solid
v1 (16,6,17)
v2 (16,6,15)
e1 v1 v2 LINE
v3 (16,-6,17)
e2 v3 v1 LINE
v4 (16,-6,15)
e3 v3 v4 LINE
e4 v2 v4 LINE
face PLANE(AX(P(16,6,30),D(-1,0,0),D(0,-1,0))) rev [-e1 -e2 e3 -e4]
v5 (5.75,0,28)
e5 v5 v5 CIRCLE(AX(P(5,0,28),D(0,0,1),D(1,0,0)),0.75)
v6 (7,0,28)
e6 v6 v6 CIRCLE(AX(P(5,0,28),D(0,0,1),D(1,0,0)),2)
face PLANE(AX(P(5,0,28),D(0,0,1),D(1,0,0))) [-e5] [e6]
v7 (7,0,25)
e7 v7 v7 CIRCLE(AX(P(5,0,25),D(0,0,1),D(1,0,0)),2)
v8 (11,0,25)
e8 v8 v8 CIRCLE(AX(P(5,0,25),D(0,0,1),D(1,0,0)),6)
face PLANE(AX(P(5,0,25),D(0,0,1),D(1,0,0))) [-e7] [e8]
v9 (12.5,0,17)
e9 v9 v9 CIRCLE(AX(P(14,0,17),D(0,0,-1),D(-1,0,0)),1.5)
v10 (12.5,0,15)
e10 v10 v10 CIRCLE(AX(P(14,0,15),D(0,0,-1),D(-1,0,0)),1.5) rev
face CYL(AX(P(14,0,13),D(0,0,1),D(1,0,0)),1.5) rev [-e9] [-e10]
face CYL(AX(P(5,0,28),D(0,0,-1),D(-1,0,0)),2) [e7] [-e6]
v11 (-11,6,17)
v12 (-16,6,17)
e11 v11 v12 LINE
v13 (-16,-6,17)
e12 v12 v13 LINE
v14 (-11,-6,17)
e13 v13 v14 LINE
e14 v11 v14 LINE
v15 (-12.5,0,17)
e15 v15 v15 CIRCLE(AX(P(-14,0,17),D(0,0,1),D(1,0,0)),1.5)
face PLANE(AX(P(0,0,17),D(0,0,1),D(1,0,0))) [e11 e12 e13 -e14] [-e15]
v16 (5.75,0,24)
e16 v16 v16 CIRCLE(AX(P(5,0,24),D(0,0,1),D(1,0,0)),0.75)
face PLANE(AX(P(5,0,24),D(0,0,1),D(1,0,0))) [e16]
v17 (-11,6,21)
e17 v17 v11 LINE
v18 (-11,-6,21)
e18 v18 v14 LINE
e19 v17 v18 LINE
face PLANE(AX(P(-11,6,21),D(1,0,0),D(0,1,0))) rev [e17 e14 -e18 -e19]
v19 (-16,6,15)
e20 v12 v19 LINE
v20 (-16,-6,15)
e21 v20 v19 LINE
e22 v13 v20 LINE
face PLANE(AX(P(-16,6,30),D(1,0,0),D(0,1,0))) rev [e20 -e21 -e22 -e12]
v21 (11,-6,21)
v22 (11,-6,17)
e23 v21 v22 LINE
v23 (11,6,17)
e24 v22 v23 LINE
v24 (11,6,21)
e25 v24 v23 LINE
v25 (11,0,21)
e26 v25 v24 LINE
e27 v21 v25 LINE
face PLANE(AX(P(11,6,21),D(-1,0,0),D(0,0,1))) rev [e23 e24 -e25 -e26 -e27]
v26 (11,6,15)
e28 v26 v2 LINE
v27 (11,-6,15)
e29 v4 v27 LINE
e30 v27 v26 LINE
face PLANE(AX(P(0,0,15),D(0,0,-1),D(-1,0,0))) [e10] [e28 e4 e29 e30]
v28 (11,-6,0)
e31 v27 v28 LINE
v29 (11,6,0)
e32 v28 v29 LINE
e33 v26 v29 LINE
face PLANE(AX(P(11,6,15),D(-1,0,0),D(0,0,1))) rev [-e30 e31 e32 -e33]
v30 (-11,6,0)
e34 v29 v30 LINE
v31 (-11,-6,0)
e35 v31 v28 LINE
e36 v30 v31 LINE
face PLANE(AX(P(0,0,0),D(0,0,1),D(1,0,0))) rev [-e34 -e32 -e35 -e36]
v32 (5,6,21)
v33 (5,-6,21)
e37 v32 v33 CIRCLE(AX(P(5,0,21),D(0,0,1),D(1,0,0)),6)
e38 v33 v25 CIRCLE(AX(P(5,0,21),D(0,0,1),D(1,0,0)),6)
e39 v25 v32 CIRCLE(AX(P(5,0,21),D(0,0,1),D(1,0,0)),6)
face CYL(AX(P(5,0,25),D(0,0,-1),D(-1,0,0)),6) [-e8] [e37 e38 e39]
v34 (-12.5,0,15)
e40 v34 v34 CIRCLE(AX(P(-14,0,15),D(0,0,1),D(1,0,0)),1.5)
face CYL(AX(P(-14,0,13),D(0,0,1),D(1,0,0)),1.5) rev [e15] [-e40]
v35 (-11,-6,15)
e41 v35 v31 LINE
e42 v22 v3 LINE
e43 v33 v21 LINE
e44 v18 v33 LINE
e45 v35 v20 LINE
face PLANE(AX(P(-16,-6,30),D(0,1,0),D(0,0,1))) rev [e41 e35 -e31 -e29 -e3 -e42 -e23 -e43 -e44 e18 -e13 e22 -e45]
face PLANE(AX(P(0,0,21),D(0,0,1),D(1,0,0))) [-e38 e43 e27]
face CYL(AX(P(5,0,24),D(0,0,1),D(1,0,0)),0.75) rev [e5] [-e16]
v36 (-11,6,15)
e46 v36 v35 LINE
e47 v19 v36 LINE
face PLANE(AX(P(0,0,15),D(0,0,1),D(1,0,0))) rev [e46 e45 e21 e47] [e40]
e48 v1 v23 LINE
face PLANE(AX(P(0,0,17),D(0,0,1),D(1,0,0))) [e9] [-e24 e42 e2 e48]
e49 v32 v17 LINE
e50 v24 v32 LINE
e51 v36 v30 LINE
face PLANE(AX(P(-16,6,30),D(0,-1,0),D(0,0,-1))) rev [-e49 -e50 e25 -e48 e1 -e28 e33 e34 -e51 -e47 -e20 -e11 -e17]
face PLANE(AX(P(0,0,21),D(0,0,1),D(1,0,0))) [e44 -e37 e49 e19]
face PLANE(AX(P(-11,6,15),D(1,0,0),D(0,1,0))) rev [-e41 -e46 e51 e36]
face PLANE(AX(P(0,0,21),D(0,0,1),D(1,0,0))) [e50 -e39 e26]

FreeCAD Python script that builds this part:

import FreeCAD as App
import Part
import Sketcher
from FreeCAD import Vector


def add_polygon(sketch, points):
    """Adds a closed chain of lines whose ends are joined by coincident constraints."""
    first, n = sketch.GeometryCount, len(points)
    for a, b in zip(points, points[1:] + points[:1]):
        sketch.addGeometry(Part.LineSegment(App.Vector(*a, 0), App.Vector(*b, 0)), False)
    for i in range(n):
        sketch.addConstraint(Sketcher.Constraint("Coincident", first + i, 2, first + (i + 1) % n, 1))

doc = App.newDocument("Part")
params = doc.addObject("Spreadsheet::Sheet", "Params")
for row, (alias, value) in enumerate([
    ("sketch1_width", "32 mm"),
    ("sketch1_height", "12 mm"),
    ("pad1_length", "30 mm"),
    ("sketch2_width", "5 mm"),
    ("sketch2_height", "12 mm"),
    ("pocket1_length", "15 mm"),
    ("sketch3_width", "32 mm"),
    ("sketch3_height", "12 mm"),
    ("pocket2_length", "13 mm"),
    ("sketch4_width", "22 mm"),
    ("sketch4_height", "12 mm"),
    ("pad2_length", "4 mm"),
    ("sketch5_diameter", "12 mm"),
    ("pad3_length", "4 mm"),
    ("sketch6_diameter", "4 mm"),
    ("pad4_length", "3 mm"),
    ("sketch7_diameter", "1.5 mm"),
    ("pocket3_length", "4 mm"),
    ("sketch8_diameter", "3 mm"),
    ("pocket4_length", "4 mm"),
], start=1):
    params.set(f"A{row}", alias)
    params.set(f"B{row}", "=" + value)
    params.setAlias(f"B{row}", alias)

body = doc.addObject("PartDesign::Body", "Body")

# Sketch on XY plane
sketch1 = doc.addObject("Sketcher::SketchObject", "Sketch")
body.addObject(sketch1)
sketch1.AttachmentSupport = (doc.XY_Plane, [""])
sketch1.MapMode = "FlatFace"
add_polygon(sketch1, [(-16, 6), (-16, -6), (16, -6), (16, 6)])  # lines 0-3
sketch1.addConstraint([
    Sketcher.Constraint("Vertical", 0),
    Sketcher.Constraint("Horizontal", 1),
    Sketcher.Constraint("Vertical", 2),
    Sketcher.Constraint("Horizontal", 3),
    Sketcher.Constraint("Symmetric", 0, 2, 2, 2, -1, 1),
    Sketcher.Constraint("DistanceX", 1, 1, 1, 2, 32.0),
    Sketcher.Constraint("DistanceY", 0, 2, 0, 1, 12.0),
])
sketch1.setExpression("Constraints[9]", "Params.sketch1_width")
sketch1.setExpression("Constraints[10]", "Params.sketch1_height")
pad1 = doc.addObject("PartDesign::Pad", "Pad")
body.addObject(pad1)
pad1.Profile = sketch1
pad1.setExpression("Length", "Params.pad1_length")

# Sketch on XY plane
sketch2 = doc.addObject("Sketcher::SketchObject", "Sketch001")
body.addObject(sketch2)
sketch2.AttachmentSupport = (doc.XY_Plane, [""])
sketch2.MapMode = "FlatFace"
add_polygon(sketch2, [(16, 6), (16, -6), (11, -6), (11, 6)])  # lines 0-3
add_polygon(sketch2, [(-11, 6), (-11, -6), (-16, -6), (-16, 6)])  # lines 4-7
sketch2.addConstraint([
    Sketcher.Constraint("Vertical", 0),
    Sketcher.Constraint("Horizontal", 1),
    Sketcher.Constraint("Vertical", 2),
    Sketcher.Constraint("Horizontal", 3),
    Sketcher.Constraint("Vertical", 4),
    Sketcher.Constraint("Horizontal", 5),
    Sketcher.Constraint("Vertical", 6),
    Sketcher.Constraint("Horizontal", 7),
    Sketcher.Constraint("Symmetric", 2, 2, 4, 2, -1, 1),
    Sketcher.Constraint("Symmetric", 0, 2, 6, 2, -1, 1),
    Sketcher.Constraint("Horizontal", 1, 2, 4, 2),
    Sketcher.Constraint("DistanceX", 1, 2, 1, 1, 5.0),
    Sketcher.Constraint("DistanceY", 0, 2, 0, 1, 12.0),
    Sketcher.Constraint("DistanceX", -1, 1, 0, 2, 16.0),
])
sketch2.setExpression("Constraints[19]", "Params.sketch2_width")
sketch2.setExpression("Constraints[20]", "Params.sketch2_height")
pocket1 = doc.addObject("PartDesign::Pocket", "Pocket")
body.addObject(pocket1)
pocket1.Profile = sketch2
pocket1.setExpression("Length", "Params.pocket1_length")
pocket1.Reversed = True

# Sketch on XY plane
sketch3 = doc.addObject("Sketcher::SketchObject", "Sketch002")
body.addObject(sketch3)
sketch3.AttachmentSupport = (doc.XY_Plane, [""])
sketch3.MapMode = "FlatFace"
sketch3.AttachmentOffset = App.Placement(Vector(0, 0, 30), App.Rotation())
add_polygon(sketch3, [(-16, 6), (-16, -6), (16, -6), (16, 6)])  # lines 0-3
sketch3.addConstraint([
    Sketcher.Constraint("Vertical", 0),
    Sketcher.Constraint("Horizontal", 1),
    Sketcher.Constraint("Vertical", 2),
    Sketcher.Constraint("Horizontal", 3),
    Sketcher.Constraint("Symmetric", 0, 2, 2, 2, -1, 1),
    Sketcher.Constraint("DistanceX", 1, 1, 1, 2, 32.0),
    Sketcher.Constraint("DistanceY", 0, 2, 0, 1, 12.0),
])
sketch3.setExpression("Constraints[9]", "Params.sketch3_width")
sketch3.setExpression("Constraints[10]", "Params.sketch3_height")
pocket2 = doc.addObject("PartDesign::Pocket", "Pocket001")
body.addObject(pocket2)
pocket2.Profile = sketch3
pocket2.setExpression("Length", "Params.pocket2_length")

# Sketch on XY plane
sketch4 = doc.addObject("Sketcher::SketchObject", "Sketch003")
body.addObject(sketch4)
sketch4.AttachmentSupport = (doc.XY_Plane, [""])
sketch4.MapMode = "FlatFace"
sketch4.AttachmentOffset = App.Placement(Vector(0, 0, 17), App.Rotation())
add_polygon(sketch4, [(-11, 6), (-11, -6), (11, -6), (11, 6)])  # lines 0-3
sketch4.addConstraint([
    Sketcher.Constraint("Vertical", 0),
    Sketcher.Constraint("Horizontal", 1),
    Sketcher.Constraint("Vertical", 2),
    Sketcher.Constraint("Horizontal", 3),
    Sketcher.Constraint("Symmetric", 0, 2, 2, 2, -1, 1),
    Sketcher.Constraint("DistanceX", 1, 1, 1, 2, 22.0),
    Sketcher.Constraint("DistanceY", 0, 2, 0, 1, 12.0),
])
sketch4.setExpression("Constraints[9]", "Params.sketch4_width")
sketch4.setExpression("Constraints[10]", "Params.sketch4_height")
pad2 = doc.addObject("PartDesign::Pad", "Pad001")
body.addObject(pad2)
pad2.Profile = sketch4
pad2.setExpression("Length", "Params.pad2_length")

# Sketch on XY plane
sketch5 = doc.addObject("Sketcher::SketchObject", "Sketch004")
body.addObject(sketch5)
sketch5.AttachmentSupport = (doc.XY_Plane, [""])
sketch5.MapMode = "FlatFace"
sketch5.AttachmentOffset = App.Placement(Vector(0, 0, 21), App.Rotation())
sketch5.addGeometry(Part.Circle(Vector(5, 0, 0), Vector(0, 0, 1), 6), False)
sketch5.addConstraint([
    Sketcher.Constraint("PointOnObject", 0, 3, -1),
    Sketcher.Constraint("Diameter", 0, 12.0),
    Sketcher.Constraint("DistanceX", -1, 1, 0, 3, 5.0),
])
sketch5.setExpression("Constraints[1]", "Params.sketch5_diameter")
pad3 = doc.addObject("PartDesign::Pad", "Pad002")
body.addObject(pad3)
pad3.Profile = sketch5
pad3.setExpression("Length", "Params.pad3_length")

# Sketch on XY plane
sketch6 = doc.addObject("Sketcher::SketchObject", "Sketch005")
body.addObject(sketch6)
sketch6.AttachmentSupport = (doc.XY_Plane, [""])
sketch6.MapMode = "FlatFace"
sketch6.AttachmentOffset = App.Placement(Vector(0, 0, 25), App.Rotation())
sketch6.addGeometry(Part.Circle(Vector(5, 0, 0), Vector(0, 0, 1), 2), False)
sketch6.addConstraint([
    Sketcher.Constraint("PointOnObject", 0, 3, -1),
    Sketcher.Constraint("Diameter", 0, 4.0),
    Sketcher.Constraint("DistanceX", -1, 1, 0, 3, 5.0),
])
sketch6.setExpression("Constraints[1]", "Params.sketch6_diameter")
pad4 = doc.addObject("PartDesign::Pad", "Pad003")
body.addObject(pad4)
pad4.Profile = sketch6
pad4.setExpression("Length", "Params.pad4_length")

# Sketch on XY plane
sketch7 = doc.addObject("Sketcher::SketchObject", "Sketch006")
body.addObject(sketch7)
sketch7.AttachmentSupport = (doc.XY_Plane, [""])
sketch7.MapMode = "FlatFace"
sketch7.AttachmentOffset = App.Placement(Vector(0, 0, 28), App.Rotation())
sketch7.addGeometry(Part.Circle(Vector(5, 0, 0), Vector(0, 0, 1), 0.8), False)
sketch7.addConstraint([
    Sketcher.Constraint("PointOnObject", 0, 3, -1),
    Sketcher.Constraint("Diameter", 0, 1.5),
    Sketcher.Constraint("DistanceX", -1, 1, 0, 3, 5.0),
])
sketch7.setExpression("Constraints[1]", "Params.sketch7_diameter")
pocket3 = doc.addObject("PartDesign::Pocket", "Pocket002")
body.addObject(pocket3)
pocket3.Profile = sketch7
pocket3.setExpression("Length", "Params.pocket3_length")

# Sketch on XY plane
sketch8 = doc.addObject("Sketcher::SketchObject", "Sketch007")
body.addObject(sketch8)
sketch8.AttachmentSupport = (doc.XY_Plane, [""])
sketch8.MapMode = "FlatFace"
sketch8.AttachmentOffset = App.Placement(Vector(0, 0, 17), App.Rotation())
sketch8.addGeometry(Part.Circle(Vector(-14, 0, 0), Vector(0, 0, 1), 1.5), False)
sketch8.addConstraint([
    Sketcher.Constraint("PointOnObject", 0, 3, -1),
    Sketcher.Constraint("Diameter", 0, 3.0),
    Sketcher.Constraint("DistanceX", 0, 3, -1, 1, 14.0),
])
sketch8.setExpression("Constraints[1]", "Params.sketch8_diameter")
pocket4 = doc.addObject("PartDesign::Pocket", "Pocket003")
body.addObject(pocket4)
pocket4.Profile = sketch8
pocket4.setExpression("Length", "Params.pocket4_length")
doc.recompute()

mirrored = doc.addObject("PartDesign::Mirrored", "Mirrored")
body.addObject(mirrored)
mirrored.Originals = [pocket4]
mirrored.MirrorPlane = (doc.YZ_Plane, [""])
body.Tip = mirrored

doc.recompute()
